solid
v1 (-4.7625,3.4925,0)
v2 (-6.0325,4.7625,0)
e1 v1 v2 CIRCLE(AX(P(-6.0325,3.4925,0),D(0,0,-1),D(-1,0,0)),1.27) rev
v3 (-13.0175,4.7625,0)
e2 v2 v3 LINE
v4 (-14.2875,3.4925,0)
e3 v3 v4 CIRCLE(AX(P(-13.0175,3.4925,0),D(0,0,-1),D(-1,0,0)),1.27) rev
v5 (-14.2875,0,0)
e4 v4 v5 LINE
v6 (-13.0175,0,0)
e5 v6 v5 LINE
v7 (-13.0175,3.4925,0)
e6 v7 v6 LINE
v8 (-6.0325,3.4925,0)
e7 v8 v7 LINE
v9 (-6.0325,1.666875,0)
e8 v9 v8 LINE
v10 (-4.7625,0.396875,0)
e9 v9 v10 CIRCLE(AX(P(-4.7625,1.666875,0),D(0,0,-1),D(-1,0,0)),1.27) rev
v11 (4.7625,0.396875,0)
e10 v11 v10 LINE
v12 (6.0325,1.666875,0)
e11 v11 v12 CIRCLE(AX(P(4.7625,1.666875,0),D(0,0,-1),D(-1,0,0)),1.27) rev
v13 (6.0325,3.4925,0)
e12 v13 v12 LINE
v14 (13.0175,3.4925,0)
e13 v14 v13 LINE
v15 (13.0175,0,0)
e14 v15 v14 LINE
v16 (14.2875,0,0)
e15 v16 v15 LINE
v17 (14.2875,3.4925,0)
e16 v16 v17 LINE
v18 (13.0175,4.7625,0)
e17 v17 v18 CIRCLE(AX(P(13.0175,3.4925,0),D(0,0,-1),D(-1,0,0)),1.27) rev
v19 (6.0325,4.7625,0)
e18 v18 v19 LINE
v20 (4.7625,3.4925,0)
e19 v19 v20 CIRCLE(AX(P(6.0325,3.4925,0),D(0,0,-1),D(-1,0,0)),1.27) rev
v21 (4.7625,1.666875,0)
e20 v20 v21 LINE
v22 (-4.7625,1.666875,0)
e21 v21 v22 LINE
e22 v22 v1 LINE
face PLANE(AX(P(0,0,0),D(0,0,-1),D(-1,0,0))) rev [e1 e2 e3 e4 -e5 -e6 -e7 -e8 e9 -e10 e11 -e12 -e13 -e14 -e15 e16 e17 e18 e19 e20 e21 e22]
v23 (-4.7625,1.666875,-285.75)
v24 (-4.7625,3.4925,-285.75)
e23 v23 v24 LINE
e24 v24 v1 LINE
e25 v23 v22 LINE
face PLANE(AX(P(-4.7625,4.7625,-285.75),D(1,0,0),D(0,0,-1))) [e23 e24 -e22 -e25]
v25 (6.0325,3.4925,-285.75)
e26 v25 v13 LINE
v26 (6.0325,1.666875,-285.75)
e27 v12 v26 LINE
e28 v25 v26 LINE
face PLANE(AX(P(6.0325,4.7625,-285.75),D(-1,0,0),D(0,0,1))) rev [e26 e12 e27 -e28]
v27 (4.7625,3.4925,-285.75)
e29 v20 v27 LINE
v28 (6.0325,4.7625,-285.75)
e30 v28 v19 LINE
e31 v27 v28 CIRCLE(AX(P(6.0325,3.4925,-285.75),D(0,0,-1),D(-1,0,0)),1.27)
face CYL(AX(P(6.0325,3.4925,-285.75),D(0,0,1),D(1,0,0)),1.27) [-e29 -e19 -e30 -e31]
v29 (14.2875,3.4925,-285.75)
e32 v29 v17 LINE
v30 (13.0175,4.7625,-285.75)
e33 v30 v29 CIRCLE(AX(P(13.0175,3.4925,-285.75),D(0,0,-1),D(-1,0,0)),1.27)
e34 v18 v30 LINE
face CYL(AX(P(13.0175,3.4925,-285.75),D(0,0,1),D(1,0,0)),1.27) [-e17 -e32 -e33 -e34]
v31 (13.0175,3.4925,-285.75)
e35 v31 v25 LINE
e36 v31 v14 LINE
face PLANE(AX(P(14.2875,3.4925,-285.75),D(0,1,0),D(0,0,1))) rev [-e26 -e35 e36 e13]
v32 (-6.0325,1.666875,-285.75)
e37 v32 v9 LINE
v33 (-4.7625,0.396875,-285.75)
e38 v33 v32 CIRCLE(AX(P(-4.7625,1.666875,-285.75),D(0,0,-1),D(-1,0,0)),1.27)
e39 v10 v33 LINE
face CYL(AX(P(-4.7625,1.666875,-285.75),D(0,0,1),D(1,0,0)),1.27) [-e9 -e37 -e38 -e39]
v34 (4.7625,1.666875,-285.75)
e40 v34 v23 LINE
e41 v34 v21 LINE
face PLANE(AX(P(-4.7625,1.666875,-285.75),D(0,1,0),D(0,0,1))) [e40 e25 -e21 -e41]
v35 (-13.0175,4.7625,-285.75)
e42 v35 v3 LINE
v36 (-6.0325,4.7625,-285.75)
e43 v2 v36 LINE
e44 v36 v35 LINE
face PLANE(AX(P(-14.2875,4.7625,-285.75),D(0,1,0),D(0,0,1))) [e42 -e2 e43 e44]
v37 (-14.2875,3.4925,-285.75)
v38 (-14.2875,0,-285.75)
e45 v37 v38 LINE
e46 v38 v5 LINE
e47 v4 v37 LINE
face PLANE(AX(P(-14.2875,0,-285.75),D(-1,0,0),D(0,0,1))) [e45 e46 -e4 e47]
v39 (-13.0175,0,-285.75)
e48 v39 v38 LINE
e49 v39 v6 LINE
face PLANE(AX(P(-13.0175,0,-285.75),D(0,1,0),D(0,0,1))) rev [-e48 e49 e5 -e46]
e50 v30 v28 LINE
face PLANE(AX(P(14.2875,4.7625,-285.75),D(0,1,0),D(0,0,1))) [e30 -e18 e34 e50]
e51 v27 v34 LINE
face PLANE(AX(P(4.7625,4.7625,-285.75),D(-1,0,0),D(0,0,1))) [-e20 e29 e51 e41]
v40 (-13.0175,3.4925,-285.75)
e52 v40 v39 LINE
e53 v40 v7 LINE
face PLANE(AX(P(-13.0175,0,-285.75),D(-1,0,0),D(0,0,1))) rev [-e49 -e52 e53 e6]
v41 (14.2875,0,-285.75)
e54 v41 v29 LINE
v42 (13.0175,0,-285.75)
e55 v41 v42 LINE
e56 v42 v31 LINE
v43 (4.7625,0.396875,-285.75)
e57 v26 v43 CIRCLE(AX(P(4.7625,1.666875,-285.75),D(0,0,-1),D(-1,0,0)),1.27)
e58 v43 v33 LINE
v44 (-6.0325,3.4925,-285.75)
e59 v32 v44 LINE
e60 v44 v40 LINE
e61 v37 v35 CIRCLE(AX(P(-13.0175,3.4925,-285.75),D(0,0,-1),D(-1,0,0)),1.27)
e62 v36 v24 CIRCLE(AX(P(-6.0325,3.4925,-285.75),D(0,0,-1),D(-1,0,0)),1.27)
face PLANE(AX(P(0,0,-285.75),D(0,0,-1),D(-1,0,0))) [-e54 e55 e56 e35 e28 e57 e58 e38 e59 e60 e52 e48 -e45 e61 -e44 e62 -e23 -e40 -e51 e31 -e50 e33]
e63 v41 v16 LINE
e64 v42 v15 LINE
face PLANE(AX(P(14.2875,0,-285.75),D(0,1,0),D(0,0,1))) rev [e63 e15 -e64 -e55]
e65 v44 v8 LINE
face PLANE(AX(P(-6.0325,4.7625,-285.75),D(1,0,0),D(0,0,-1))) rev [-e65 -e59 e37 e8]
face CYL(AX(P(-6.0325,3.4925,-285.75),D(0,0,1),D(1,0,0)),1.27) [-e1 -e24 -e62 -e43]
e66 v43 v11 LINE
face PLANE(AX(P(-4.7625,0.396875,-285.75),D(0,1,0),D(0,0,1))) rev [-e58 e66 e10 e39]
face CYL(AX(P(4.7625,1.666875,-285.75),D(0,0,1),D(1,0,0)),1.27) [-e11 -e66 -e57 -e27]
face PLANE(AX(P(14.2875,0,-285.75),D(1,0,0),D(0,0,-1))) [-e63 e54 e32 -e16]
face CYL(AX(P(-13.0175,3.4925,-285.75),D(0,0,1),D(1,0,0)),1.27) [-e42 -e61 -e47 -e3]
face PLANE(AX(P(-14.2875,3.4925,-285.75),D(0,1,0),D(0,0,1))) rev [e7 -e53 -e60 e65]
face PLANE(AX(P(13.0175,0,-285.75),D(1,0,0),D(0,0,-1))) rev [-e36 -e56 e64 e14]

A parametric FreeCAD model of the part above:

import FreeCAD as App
import Part
import Sketcher
from FreeCAD import Vector
Q = App.Units.Quantity


def edges_at(feature, points):
    """Names of the edges that pass closest to the given points."""
    edges = feature.Shape.Edges
    near = lambda p: min(range(len(edges)), key=lambda i: edges[i].distToShape(Part.Vertex(*p))[0])
    return sorted({f"Edge{near(p) + 1}" for p in points})


def add_polygon(sketch, points):
    """Adds a closed chain of lines whose ends are joined by coincident constraints."""
    first, n = sketch.GeometryCount, len(points)
    for a, b in zip(points, points[1:] + points[:1]):
        sketch.addGeometry(Part.LineSegment(App.Vector(*a, 0), App.Vector(*b, 0)), False)
    for i in range(n):
        sketch.addConstraint(Sketcher.Constraint("Coincident", first + i, 2, first + (i + 1) % n, 1))

doc = App.newDocument("Part")
body = doc.addObject("PartDesign::Body", "Body")

sketch1 = body.newObject("Sketcher::SketchObject", "Sketch")
sketch1.AttachmentSupport = (doc.getObject("XY_Plane"), [""])
sketch1.MapMode = "FlatFace"
add_polygon(sketch1, [(-14.3, 4.8), (-14.3, 0), (-13, 0), (-13, 3.5), (-6, 3.5), (-6, 0.4), (6, 0.4), (6, 3.5), (13, 3.5), (13, 0), (14.3, 0), (14.3, 4.8), (4.8, 4.8), (4.8, 1.7), (-4.8, 1.7), (-4.8, 4.8)])
sketch1.addConstraint(Sketcher.Constraint("Vertical", 0))
sketch1.addConstraint(Sketcher.Constraint("Horizontal", 1))
sketch1.addConstraint(Sketcher.Constraint("Vertical", 2))
sketch1.addConstraint(Sketcher.Constraint("Horizontal", 3))
sketch1.addConstraint(Sketcher.Constraint("Vertical", 4))
sketch1.addConstraint(Sketcher.Constraint("Horizontal", 5))
sketch1.addConstraint(Sketcher.Constraint("Vertical", 6))
sketch1.addConstraint(Sketcher.Constraint("Horizontal", 7))
sketch1.addConstraint(Sketcher.Constraint("Vertical", 8))
sketch1.addConstraint(Sketcher.Constraint("Horizontal", 9))
sketch1.addConstraint(Sketcher.Constraint("Vertical", 10))
sketch1.addConstraint(Sketcher.Constraint("Horizontal", 11))
sketch1.addConstraint(Sketcher.Constraint("Vertical", 12))
sketch1.addConstraint(Sketcher.Constraint("Horizontal", 13))
sketch1.addConstraint(Sketcher.Constraint("Vertical", 14))
sketch1.addConstraint(Sketcher.Constraint("Horizontal", 15))
sketch1.addConstraint(Sketcher.Constraint("Symmetric", 1, 2, 8, 2, -1, 1))
sketch1.addConstraint(Sketcher.Constraint("Symmetric", 3, 2, 6, 2, -2))
sketch1.addConstraint(Sketcher.Constraint("Symmetric", 0, 2, 9, 2, -2))
sketch1.addConstraint(Sketcher.Constraint("Symmetric", 11, 2, 14, 2, -2))
sketch1.addConstraint(Sketcher.Constraint("Equal", 11, 13))
sketch1.addConstraint(Sketcher.Constraint("Equal", 6, 12))
sketch1.addConstraint(Sketcher.Constraint("DistanceX", 1, 1, 1, 2, Q("0.05 in")))
sketch1.addConstraint(Sketcher.Constraint("DistanceX", 0, 2, 5, 2, Q("0.8 in")))
sketch1.addConstraint(Sketcher.Constraint("DistanceX", 3, 1, 3, 2, Q("0.275 in")))
sketch1.addConstraint(Sketcher.Constraint("DistanceY", 0, 2, 0, 1, Q("0.1875 in")))
sketch1.addConstraint(Sketcher.Constraint("DistanceY", 7, 2, 10, 2, Q("0.05 in")))
sketch1.addConstraint(Sketcher.Constraint("DistanceY", -1, 1, 4, 2, Q("0.015625 in")))
pad1 = body.newObject("PartDesign::Pad", "Pad")
pad1.Profile = sketch1
pad1.Length = Q("11.25 in")
pad1.Reversed = True
doc.recompute()

fillet = body.newObject("PartDesign::Fillet", "Fillet")
fillet.Base = (pad1, edges_at(pad1, [
    (-14.287, 4.763, -142.875),
    (-4.763, 4.763, -142.875),
    (4.763, 4.763, -142.875),
    (14.287, 4.763, -142.875),
    (6.032, 0.397, -142.875),
    (-6.032, 0.397, -142.875),
]))
fillet.Radius = Q("0.05 in")

doc.recompute()
